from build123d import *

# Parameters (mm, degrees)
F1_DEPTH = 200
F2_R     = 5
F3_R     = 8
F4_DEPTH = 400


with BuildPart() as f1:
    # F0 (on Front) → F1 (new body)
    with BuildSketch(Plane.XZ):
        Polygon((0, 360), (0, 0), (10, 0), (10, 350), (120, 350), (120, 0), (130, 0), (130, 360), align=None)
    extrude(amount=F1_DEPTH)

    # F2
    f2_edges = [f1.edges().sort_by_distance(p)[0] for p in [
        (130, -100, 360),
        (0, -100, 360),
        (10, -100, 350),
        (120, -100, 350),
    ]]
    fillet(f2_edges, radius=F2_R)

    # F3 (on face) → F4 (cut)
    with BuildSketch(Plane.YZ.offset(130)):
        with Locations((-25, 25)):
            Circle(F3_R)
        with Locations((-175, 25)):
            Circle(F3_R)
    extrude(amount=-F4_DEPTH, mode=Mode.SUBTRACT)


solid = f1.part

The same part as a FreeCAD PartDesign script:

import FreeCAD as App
import Part
import Sketcher
from FreeCAD import Vector


def edges_at(feature, points):
    """Names of the edges that pass closest to the given points."""
    edges = feature.Shape.Edges
    near = lambda p: min(range(len(edges)), key=lambda i: edges[i].distToShape(Part.Vertex(*p))[0])
    return sorted({f"Edge{near(p) + 1}" for p in points})


def add_polygon(sketch, points):
    """Adds a closed chain of lines whose ends are joined by coincident constraints."""
    first, n = sketch.GeometryCount, len(points)
    for a, b in zip(points, points[1:] + points[:1]):
        sketch.addGeometry(Part.LineSegment(App.Vector(*a, 0), App.Vector(*b, 0)), False)
    for i in range(n):
        sketch.addConstraint(Sketcher.Constraint("Coincident", first + i, 2, first + (i + 1) % n, 1))

doc = App.newDocument("Part")
params = doc.addObject("Spreadsheet::Sheet", "Params")
for row, (alias, value) in enumerate([
    ("sketch1_width", "10 mm"),
    ("sketch1_width2", "110 mm"),
    ("sketch1_height", "360 mm"),
    ("sketch1_height2", "350 mm"),
    ("pad1_length", "200 mm"),
    ("fillet_radius", "5 mm"),
    ("sketch2_diameter", "16 mm"),
    ("pocket1_length", "400 mm"),
], start=1):
    params.set(f"A{row}", alias)
    params.set(f"B{row}", "=" + value)
    params.setAlias(f"B{row}", alias)

body = doc.addObject("PartDesign::Body", "Body")

# Sketch on XZ plane
sketch1 = doc.addObject("Sketcher::SketchObject", "Sketch")
body.addObject(sketch1)
sketch1.AttachmentSupport = (doc.XZ_Plane, [""])
sketch1.MapMode = "FlatFace"
add_polygon(sketch1, [(0, 360), (0, 0), (10, 0), (10, 350), (120, 350), (120, 0), (130, 0), (130, 360)])  # lines 0-7
sketch1.addConstraint(Sketcher.Constraint("Vertical", 0))
sketch1.addConstraint(Sketcher.Constraint("Horizontal", 1))
sketch1.addConstraint(Sketcher.Constraint("Vertical", 2))
sketch1.addConstraint(Sketcher.Constraint("Horizontal", 3))
sketch1.addConstraint(Sketcher.Constraint("Vertical", 4))
sketch1.addConstraint(Sketcher.Constraint("Horizontal", 5))
sketch1.addConstraint(Sketcher.Constraint("Vertical", 6))
sketch1.addConstraint(Sketcher.Constraint("Horizontal", 7))
sketch1.addConstraint(Sketcher.Constraint("Coincident", 0, 2, -1, 1))
sketch1.addConstraint(Sketcher.Constraint("PointOnObject", 4, 2, -1))
sketch1.addConstraint(Sketcher.Constraint("Equal", 1, 5))
sketch1.addConstraint(Sketcher.Constraint("DistanceX", 1, 1, 1, 2, 10.0))
sketch1.addConstraint(Sketcher.Constraint("DistanceX", 3, 1, 3, 2, 110.0))
sketch1.addConstraint(Sketcher.Constraint("DistanceY", 0, 2, 0, 1, 360.0))
sketch1.addConstraint(Sketcher.Constraint("DistanceY", 2, 1, 2, 2, 350.0))
sketch1.setExpression("Constraints[19]", "Params.sketch1_width")
sketch1.setExpression("Constraints[20]", "Params.sketch1_width2")
sketch1.setExpression("Constraints[21]", "Params.sketch1_height")
sketch1.setExpression("Constraints[22]", "Params.sketch1_height2")
pad1 = doc.addObject("PartDesign::Pad", "Pad")
body.addObject(pad1)
pad1.Profile = sketch1
pad1.setExpression("Length", "Params.pad1_length")
doc.recompute()

fillet = doc.addObject("PartDesign::Fillet", "Fillet")
body.addObject(fillet)
fillet.Base = (pad1, edges_at(pad1, [
    (130, -100, 360),
    (0, -100, 360),
    (10, -100, 350),
    (120, -100, 350),
]))
fillet.setExpression("Radius", "Params.fillet_radius")

# Sketch on YZ plane
sketch2 = doc.addObject("Sketcher::SketchObject", "Sketch001")
body.addObject(sketch2)
sketch2.AttachmentSupport = (doc.YZ_Plane, [""])
sketch2.MapMode = "FlatFace"
sketch2.AttachmentOffset = App.Placement(Vector(0, 0, 130), App.Rotation())
sketch2.addGeometry(Part.Circle(Vector(-25, 25, 0), Vector(0, 0, 1), 8), False)
sketch2.addGeometry(Part.Circle(Vector(-175, 25, 0), Vector(0, 0, 1), 8), False)
sketch2.addConstraint(Sketcher.Constraint("Equal", 0, 1))
sketch2.addConstraint(Sketcher.Constraint("Horizontal", 0, 3, 1, 3))
sketch2.addConstraint(Sketcher.Constraint("Diameter", 0, 16.0))
sketch2.addConstraint(Sketcher.Constraint("DistanceX", 0, 3, -1, 1, 25.0))
sketch2.addConstraint(Sketcher.Constraint("DistanceY", -1, 1, 0, 3, 25.0))
sketch2.addConstraint(Sketcher.Constraint("DistanceX", 1, 3, -1, 1, 175.0))
sketch2.setExpression("Constraints[2]", "Params.sketch2_diameter")
pocket1 = doc.addObject("PartDesign::Pocket", "Pocket")
body.addObject(pocket1)
pocket1.Profile = sketch2
pocket1.setExpression("Length", "Params.pocket1_length")

doc.recompute()
